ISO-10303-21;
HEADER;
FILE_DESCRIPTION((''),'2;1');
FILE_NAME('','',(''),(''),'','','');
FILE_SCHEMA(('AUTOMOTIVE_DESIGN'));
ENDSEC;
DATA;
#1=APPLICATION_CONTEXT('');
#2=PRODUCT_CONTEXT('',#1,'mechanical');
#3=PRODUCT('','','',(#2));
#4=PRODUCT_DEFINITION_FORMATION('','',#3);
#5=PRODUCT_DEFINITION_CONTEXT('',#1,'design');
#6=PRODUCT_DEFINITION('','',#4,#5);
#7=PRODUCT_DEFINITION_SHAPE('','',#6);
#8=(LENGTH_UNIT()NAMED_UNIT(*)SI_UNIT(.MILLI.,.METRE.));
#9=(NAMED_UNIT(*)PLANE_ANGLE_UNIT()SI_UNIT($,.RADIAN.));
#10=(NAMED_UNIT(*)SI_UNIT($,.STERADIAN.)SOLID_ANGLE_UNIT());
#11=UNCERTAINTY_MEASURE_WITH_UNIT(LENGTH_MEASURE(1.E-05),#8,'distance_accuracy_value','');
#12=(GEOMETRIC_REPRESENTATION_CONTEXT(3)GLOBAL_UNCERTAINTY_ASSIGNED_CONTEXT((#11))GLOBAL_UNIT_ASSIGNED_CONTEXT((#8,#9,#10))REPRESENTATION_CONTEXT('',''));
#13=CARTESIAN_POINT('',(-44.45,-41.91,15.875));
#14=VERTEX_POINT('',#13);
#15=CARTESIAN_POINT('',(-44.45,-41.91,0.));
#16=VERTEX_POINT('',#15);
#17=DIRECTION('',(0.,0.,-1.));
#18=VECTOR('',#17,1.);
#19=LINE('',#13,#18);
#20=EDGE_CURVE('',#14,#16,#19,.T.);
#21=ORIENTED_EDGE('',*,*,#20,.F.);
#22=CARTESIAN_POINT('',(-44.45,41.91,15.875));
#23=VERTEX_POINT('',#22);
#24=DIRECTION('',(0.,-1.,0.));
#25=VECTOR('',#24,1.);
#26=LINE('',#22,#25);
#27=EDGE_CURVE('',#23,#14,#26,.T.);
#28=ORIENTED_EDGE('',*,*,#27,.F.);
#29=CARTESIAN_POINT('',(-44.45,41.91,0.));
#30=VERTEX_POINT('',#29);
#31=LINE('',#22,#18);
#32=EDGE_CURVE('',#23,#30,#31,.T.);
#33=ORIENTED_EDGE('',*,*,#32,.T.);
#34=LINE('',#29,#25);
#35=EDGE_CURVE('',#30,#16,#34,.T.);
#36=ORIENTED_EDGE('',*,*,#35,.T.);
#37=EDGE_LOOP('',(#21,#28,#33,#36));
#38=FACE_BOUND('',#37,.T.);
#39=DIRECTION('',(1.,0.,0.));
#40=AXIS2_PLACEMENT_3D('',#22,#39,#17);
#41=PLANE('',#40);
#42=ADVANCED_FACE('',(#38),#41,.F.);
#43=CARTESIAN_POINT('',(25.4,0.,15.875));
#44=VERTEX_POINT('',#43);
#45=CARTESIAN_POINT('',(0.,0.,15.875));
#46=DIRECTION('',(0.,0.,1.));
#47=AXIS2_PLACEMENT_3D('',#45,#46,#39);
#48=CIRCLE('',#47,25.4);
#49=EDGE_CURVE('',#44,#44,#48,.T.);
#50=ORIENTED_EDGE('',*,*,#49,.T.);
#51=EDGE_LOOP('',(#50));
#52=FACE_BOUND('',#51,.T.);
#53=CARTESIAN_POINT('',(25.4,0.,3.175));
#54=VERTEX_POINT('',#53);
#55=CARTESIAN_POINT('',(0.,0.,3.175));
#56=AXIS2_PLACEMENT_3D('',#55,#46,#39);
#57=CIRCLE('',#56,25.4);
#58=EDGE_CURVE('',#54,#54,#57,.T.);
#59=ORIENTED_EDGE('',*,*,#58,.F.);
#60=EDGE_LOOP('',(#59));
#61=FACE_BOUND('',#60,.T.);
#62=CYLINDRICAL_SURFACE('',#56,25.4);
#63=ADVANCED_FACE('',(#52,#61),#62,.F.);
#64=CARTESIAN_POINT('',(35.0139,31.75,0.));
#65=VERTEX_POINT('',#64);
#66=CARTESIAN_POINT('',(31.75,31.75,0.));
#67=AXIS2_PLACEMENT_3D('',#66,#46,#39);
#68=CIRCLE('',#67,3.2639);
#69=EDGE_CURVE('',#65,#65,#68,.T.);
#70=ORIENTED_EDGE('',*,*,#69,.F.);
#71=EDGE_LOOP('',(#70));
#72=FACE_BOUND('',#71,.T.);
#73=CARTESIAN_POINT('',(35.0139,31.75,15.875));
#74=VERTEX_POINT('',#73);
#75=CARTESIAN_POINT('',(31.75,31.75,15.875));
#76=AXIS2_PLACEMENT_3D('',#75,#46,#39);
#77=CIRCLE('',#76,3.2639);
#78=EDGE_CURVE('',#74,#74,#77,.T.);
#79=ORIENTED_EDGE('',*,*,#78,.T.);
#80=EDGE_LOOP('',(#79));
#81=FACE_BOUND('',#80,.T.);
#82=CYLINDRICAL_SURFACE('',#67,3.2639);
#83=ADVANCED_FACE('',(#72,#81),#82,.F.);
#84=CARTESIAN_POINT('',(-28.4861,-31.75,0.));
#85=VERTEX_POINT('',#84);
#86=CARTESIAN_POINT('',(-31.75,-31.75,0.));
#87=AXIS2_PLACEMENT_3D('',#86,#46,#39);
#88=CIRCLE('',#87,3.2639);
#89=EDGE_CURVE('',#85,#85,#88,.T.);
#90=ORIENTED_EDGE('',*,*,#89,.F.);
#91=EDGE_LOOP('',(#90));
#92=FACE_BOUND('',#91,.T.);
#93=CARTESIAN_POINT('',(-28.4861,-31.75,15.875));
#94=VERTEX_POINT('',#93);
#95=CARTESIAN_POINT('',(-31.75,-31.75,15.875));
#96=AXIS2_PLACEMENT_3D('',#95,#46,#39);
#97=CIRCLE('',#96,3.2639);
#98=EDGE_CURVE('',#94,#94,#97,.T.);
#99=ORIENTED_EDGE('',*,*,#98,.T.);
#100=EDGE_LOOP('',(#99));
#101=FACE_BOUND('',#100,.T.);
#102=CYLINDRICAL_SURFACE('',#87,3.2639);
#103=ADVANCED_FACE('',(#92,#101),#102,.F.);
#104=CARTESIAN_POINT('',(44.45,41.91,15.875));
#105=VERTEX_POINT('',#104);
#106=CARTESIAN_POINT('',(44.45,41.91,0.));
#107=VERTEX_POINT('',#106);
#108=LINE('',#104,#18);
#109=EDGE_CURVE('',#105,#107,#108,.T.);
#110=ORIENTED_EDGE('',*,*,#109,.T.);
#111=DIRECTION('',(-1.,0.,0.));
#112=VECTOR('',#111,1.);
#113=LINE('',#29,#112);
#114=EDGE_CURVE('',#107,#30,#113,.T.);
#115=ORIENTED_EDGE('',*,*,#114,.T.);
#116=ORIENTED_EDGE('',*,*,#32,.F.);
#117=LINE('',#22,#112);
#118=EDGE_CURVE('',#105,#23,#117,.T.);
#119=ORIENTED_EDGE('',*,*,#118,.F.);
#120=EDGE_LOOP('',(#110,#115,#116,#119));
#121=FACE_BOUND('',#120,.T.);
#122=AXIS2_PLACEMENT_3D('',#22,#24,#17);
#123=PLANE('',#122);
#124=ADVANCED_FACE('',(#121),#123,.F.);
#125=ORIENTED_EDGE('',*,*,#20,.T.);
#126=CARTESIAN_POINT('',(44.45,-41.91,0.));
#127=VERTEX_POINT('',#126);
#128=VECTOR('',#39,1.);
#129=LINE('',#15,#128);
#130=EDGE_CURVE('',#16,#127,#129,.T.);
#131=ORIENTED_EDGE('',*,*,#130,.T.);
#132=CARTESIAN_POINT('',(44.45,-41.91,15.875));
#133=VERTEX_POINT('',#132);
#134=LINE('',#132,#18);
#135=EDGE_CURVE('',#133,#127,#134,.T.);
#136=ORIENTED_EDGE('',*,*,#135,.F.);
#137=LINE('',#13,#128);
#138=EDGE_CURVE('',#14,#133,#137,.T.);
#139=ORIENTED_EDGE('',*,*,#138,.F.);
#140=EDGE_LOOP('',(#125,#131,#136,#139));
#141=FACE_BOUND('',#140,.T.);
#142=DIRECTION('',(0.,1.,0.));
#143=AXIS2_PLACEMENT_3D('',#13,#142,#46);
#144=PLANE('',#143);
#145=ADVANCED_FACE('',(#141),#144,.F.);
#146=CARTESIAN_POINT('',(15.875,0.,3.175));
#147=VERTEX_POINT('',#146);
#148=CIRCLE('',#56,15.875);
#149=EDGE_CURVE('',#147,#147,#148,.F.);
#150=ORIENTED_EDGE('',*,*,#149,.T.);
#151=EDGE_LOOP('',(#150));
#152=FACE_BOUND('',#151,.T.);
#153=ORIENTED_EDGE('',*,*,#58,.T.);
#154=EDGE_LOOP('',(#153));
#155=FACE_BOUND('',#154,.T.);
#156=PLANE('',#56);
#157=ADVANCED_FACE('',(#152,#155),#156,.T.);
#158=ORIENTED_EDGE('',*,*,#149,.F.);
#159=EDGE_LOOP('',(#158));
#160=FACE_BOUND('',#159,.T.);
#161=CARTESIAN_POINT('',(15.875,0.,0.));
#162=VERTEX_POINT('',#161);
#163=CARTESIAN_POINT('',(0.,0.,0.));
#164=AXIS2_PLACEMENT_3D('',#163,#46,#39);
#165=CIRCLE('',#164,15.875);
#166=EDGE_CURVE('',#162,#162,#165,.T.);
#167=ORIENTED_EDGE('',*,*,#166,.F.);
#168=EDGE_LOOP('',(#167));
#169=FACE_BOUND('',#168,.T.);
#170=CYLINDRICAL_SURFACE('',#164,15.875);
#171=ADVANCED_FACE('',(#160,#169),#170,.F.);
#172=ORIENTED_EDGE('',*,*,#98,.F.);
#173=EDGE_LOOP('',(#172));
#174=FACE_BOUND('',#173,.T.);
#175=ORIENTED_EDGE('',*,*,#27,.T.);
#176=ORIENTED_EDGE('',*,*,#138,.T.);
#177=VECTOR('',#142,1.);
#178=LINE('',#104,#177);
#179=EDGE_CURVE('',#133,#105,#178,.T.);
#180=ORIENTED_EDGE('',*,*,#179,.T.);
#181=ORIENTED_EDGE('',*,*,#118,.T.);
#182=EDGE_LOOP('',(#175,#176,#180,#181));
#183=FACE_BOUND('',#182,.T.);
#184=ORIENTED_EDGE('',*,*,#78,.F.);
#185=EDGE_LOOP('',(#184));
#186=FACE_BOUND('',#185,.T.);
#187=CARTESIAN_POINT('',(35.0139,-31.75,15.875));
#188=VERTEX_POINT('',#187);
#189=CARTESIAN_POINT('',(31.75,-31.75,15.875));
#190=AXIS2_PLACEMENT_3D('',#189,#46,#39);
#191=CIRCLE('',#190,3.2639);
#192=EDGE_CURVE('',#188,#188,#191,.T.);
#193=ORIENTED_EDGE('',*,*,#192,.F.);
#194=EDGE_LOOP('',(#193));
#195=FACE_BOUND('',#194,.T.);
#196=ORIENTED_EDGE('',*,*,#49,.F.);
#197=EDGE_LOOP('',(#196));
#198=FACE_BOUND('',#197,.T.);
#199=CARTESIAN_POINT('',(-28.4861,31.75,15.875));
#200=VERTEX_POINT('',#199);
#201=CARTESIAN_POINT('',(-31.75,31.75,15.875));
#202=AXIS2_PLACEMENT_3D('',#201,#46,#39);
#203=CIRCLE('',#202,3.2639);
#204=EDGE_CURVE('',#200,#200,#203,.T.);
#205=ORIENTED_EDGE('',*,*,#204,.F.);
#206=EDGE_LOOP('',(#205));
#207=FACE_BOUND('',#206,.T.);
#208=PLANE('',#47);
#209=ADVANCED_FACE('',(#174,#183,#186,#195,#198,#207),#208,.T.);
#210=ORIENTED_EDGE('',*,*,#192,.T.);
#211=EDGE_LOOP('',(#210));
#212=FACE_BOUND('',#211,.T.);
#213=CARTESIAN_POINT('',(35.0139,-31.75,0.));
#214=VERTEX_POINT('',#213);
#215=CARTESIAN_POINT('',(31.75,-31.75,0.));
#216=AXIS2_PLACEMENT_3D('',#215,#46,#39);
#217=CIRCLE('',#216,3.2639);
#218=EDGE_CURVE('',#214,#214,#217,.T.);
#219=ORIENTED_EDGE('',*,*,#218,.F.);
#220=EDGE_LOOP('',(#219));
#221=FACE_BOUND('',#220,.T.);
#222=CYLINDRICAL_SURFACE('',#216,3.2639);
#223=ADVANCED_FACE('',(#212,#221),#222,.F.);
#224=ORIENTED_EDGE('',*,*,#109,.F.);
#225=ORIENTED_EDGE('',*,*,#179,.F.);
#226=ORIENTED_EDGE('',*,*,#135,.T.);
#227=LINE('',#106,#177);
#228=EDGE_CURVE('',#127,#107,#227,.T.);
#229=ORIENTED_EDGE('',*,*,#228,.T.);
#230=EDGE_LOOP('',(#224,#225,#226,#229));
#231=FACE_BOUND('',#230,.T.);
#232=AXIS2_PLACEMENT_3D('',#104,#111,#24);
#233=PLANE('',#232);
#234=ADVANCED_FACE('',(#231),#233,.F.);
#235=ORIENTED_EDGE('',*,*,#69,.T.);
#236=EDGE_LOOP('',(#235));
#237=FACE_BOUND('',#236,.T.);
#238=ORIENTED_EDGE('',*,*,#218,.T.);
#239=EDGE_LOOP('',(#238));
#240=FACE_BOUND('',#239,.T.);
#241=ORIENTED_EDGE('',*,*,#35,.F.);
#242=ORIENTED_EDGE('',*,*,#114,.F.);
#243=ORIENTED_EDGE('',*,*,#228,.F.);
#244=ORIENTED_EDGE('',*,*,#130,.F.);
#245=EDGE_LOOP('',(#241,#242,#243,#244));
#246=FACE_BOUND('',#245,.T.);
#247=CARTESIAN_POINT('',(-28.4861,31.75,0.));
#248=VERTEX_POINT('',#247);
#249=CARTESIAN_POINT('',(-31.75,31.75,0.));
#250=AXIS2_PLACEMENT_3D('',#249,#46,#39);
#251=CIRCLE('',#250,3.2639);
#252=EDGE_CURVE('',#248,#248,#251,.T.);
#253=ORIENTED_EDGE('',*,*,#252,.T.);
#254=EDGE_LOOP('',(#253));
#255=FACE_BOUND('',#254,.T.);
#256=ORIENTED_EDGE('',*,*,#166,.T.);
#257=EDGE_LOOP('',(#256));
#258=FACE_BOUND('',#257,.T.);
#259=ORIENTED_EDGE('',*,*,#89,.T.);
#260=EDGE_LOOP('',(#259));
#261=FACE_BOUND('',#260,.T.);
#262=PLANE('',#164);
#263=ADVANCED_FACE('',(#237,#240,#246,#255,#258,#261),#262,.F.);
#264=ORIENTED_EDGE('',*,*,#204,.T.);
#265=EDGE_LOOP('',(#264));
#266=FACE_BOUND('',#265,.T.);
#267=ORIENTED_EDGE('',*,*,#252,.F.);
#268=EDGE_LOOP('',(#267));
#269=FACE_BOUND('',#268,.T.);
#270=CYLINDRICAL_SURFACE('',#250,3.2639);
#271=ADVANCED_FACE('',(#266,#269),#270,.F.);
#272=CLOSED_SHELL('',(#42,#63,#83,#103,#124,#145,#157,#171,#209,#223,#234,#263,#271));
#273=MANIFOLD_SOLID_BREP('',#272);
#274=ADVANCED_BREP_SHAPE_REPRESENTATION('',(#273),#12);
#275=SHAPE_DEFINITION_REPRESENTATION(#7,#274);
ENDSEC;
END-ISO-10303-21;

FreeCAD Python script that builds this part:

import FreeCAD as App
import Part
import Sketcher
Q = App.Units.Quantity

doc = App.newDocument("Part")
body = doc.addObject("PartDesign::Body", "Body")

# Sketch on XY plane
sketch1 = body.newObject("Sketcher::SketchObject", "Sketch")
sketch1.AttachmentSupport = (doc.getObject("XY_Plane"), [""])
sketch1.MapMode = "FlatFace"
sketch1.addGeometry([
    Part.LineSegment(App.Vector(-44, 42, 0), App.Vector(-44, -42, 0)),
    Part.LineSegment(App.Vector(-44, -42, 0), App.Vector(44, -42, 0)),
    Part.LineSegment(App.Vector(44, -42, 0), App.Vector(44, 42, 0)),
    Part.LineSegment(App.Vector(44, 42, 0), App.Vector(-44, 42, 0)),
], False)
sketch1.addConstraint([
    Sketcher.Constraint("Coincident", 0, 2, 1, 1),
    Sketcher.Constraint("Coincident", 1, 2, 2, 1),
    Sketcher.Constraint("Coincident", 2, 2, 3, 1),
    Sketcher.Constraint("Coincident", 3, 2, 0, 1),
    Sketcher.Constraint("Vertical", 0),
    Sketcher.Constraint("Horizontal", 1),
    Sketcher.Constraint("Vertical", 2),
    Sketcher.Constraint("Horizontal", 3),
    Sketcher.Constraint("Symmetric", 0, 2, 2, 2, -1, 1),
    Sketcher.Constraint("DistanceX", 1, 1, 1, 2, Q("3.5 in")),
    Sketcher.Constraint("DistanceY", 0, 2, 0, 1, Q("3.3 in")),
])
pad1 = body.newObject("PartDesign::Pad", "Pad")
pad1.Profile = sketch1
pad1.Length = Q("0.625 in")

# Sketch on XY plane
sketch2 = body.newObject("Sketcher::SketchObject", "Sketch001")
sketch2.AttachmentSupport = (doc.getObject("XY_Plane"), [""])
sketch2.MapMode = "FlatFace"
sketch2.AttachmentOffset = App.Placement(App.Vector(0, 0, 0.625 * 25.4), App.Rotation())
sketch2.addGeometry([
    Part.Circle(App.Vector(-31.8, 31.8, 0), App.Vector(0, 0, 1), 3.3),  # 0
    Part.Circle(App.Vector(31.8, 31.8, 0), App.Vector(0, 0, 1), 3.3),  # 1
    Part.Circle(App.Vector(31.8, -31.8, 0), App.Vector(0, 0, 1), 3.3),  # 2
    Part.Circle(App.Vector(-31.8, -31.8, 0), App.Vector(0, 0, 1), 3.3),  # 3
    Part.Circle(App.Vector(0, 0, 0), App.Vector(0, 0, 1), 15.9),  # 4
], False)
sketch2.addConstraint([
    Sketcher.Constraint("Coincident", 4, 3, -1, 1),
    Sketcher.Constraint("Equal", 0, 1),
    Sketcher.Constraint("Equal", 1, 2),
    Sketcher.Constraint("Equal", 2, 3),
    Sketcher.Constraint("Symmetric", 0, 3, 2, 3, -1, 1),
    Sketcher.Constraint("Symmetric", 1, 3, 3, 3, -1, 1),
    Sketcher.Constraint("Symmetric", 0, 3, 1, 3, -2),
    Sketcher.Constraint("Diameter", 4, Q("1.25 in")),
    Sketcher.Constraint("Diameter", 0, Q("0.257 in")),
    Sketcher.Constraint("DistanceX", 0, 3, 1, 3, Q("2.5 in")),
    Sketcher.Constraint("DistanceY", 2, 3, 1, 3, Q("2.5 in")),
])
pocket1 = body.newObject("PartDesign::Pocket", "Pocket")
pocket1.Profile = sketch2
pocket1.Type = "ThroughAll"

# Sketch on XY plane
sketch3 = body.newObject("Sketcher::SketchObject", "Sketch002")
sketch3.AttachmentSupport = (doc.getObject("XY_Plane"), [""])
sketch3.MapMode = "FlatFace"
sketch3.AttachmentOffset = App.Placement(App.Vector(0, 0, 0.625 * 25.4), App.Rotation())
sketch3.addGeometry(Part.Circle(App.Vector(0, 0, 0), App.Vector(0, 0, 1), 25), False)
sketch3.addConstraint([
    Sketcher.Constraint("Coincident", 0, 3, -1, 1),
    Sketcher.Constraint("Diameter", 0, Q("2 in")),
])
pocket2 = body.newObject("PartDesign::Pocket", "Pocket001")
pocket2.Profile = sketch3
pocket2.Length = Q("0.5 in")

doc.recompute()
